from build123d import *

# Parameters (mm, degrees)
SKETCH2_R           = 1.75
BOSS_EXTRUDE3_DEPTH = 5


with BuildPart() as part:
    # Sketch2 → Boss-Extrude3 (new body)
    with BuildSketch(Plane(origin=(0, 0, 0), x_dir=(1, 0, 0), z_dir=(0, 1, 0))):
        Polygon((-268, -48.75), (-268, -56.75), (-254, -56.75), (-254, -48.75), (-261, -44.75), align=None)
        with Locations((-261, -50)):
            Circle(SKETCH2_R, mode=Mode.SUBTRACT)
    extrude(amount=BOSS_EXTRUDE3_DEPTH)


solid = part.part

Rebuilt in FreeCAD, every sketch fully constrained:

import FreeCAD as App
import Part
import Sketcher
from FreeCAD import Vector


def add_polygon(sketch, points):
    """Adds a closed chain of lines whose ends are joined by coincident constraints."""
    first, n = sketch.GeometryCount, len(points)
    for a, b in zip(points, points[1:] + points[:1]):
        sketch.addGeometry(Part.LineSegment(App.Vector(*a, 0), App.Vector(*b, 0)), False)
    for i in range(n):
        sketch.addConstraint(Sketcher.Constraint("Coincident", first + i, 2, first + (i + 1) % n, 1))

doc = App.newDocument("Part")
params = doc.addObject("Spreadsheet::Sheet", "Params")
for row, (alias, value) in enumerate([
    ("sketch1_diameter", "3.5 mm"),
    ("sketch1_width", "14 mm"),
    ("sketch1_height", "8 mm"),
    ("pad1_length", "5 mm"),
], start=1):
    params.set(f"A{row}", alias)
    params.set(f"B{row}", "=" + value)
    params.setAlias(f"B{row}", alias)

body = doc.addObject("PartDesign::Body", "Body")

# Sketch on XZ plane
sketch1 = body.newObject("Sketcher::SketchObject", "Sketch")
sketch1.AttachmentSupport = (doc.getObject("XZ_Plane"), [""])
sketch1.MapMode = "FlatFace"
add_polygon(sketch1, [(-268, 48.75), (-268, 56.75), (-254, 56.75), (-254, 48.75), (-261, 44.75)])  # lines 0-4
sketch1.addGeometry(Part.Circle(Vector(-261, 50, 0), Vector(0, 0, 1), 1.75), False)  # 5
sketch1.addConstraint(Sketcher.Constraint("Vertical", 0))
sketch1.addConstraint(Sketcher.Constraint("Horizontal", 1))
sketch1.addConstraint(Sketcher.Constraint("Vertical", 2))
sketch1.addConstraint(Sketcher.Constraint("Horizontal", 2, 2, 4, 2))
sketch1.addConstraint(Sketcher.Constraint("Vertical", 5, 3, 3, 2))
sketch1.addConstraint(Sketcher.Constraint("Equal", 3, 4))
sketch1.addConstraint(Sketcher.Constraint("Diameter", 5, 3.5))
sketch1.addConstraint(Sketcher.Constraint("DistanceX", 1, 1, 1, 2, 14.0))
sketch1.addConstraint(Sketcher.Constraint("DistanceY", 0, 1, 0, 2, 8.0))
sketch1.addConstraint(Sketcher.Constraint("DistanceX", 5, 3, -1, 1, 261.0))
sketch1.addConstraint(Sketcher.Constraint("DistanceY", -1, 1, 5, 3, 50.0))
sketch1.addConstraint(Sketcher.Constraint("DistanceY", 3, 2, 2, 2, 4.0))
sketch1.addConstraint(Sketcher.Constraint("DistanceY", -1, 1, 0, 2, 56.75))
sketch1.setExpression("Constraints[11]", "Params.sketch1_diameter")
sketch1.setExpression("Constraints[12]", "Params.sketch1_width")
sketch1.setExpression("Constraints[13]", "Params.sketch1_height")
pad1 = body.newObject("PartDesign::Pad", "Pad")
pad1.Profile = sketch1
pad1.setExpression("Length", "Params.pad1_length")
pad1.Reversed = True

doc.recompute()
